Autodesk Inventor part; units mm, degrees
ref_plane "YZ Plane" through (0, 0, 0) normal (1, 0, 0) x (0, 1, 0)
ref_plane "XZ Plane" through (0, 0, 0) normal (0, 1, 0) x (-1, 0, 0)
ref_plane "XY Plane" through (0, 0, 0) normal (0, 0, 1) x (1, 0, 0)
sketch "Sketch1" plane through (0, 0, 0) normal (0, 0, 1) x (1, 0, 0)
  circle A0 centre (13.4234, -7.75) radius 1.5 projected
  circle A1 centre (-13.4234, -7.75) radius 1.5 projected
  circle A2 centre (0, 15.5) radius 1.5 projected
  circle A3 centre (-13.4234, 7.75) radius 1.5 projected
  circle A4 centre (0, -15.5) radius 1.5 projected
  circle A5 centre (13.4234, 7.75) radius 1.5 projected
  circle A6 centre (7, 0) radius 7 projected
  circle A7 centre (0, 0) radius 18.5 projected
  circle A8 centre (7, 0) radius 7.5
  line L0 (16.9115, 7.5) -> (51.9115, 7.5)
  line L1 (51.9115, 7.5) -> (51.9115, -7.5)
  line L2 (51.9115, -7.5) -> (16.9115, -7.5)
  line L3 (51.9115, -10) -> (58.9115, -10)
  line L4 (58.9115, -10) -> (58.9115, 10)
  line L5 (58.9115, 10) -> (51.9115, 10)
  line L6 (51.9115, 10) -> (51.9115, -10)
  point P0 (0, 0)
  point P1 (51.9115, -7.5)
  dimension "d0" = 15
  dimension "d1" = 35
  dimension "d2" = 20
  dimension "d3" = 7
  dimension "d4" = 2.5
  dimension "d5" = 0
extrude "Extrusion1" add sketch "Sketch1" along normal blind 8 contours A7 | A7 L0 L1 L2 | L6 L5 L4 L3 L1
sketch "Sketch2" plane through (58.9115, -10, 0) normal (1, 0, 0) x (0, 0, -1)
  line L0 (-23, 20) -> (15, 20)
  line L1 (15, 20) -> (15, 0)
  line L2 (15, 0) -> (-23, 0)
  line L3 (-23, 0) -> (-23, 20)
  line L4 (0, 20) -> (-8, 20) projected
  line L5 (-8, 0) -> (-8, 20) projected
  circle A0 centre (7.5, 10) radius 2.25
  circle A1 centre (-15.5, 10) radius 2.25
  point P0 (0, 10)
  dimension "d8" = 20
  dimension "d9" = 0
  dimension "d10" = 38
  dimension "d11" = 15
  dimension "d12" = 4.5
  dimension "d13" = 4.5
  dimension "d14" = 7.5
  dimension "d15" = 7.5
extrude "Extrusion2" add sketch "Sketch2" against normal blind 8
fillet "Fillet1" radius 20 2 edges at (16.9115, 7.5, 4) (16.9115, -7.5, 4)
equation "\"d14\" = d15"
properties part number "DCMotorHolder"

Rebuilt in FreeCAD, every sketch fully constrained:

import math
import FreeCAD as App
import Part
import Sketcher
from FreeCAD import Vector


def edges_at(feature, points):
    """Names of the edges that pass closest to the given points."""
    edges = feature.Shape.Edges
    near = lambda p: min(range(len(edges)), key=lambda i: edges[i].distToShape(Part.Vertex(*p))[0])
    return sorted({f"Edge{near(p) + 1}" for p in points})


def add_polygon(sketch, points):
    """Adds a closed chain of lines whose ends are joined by coincident constraints."""
    first, n = sketch.GeometryCount, len(points)
    for a, b in zip(points, points[1:] + points[:1]):
        sketch.addGeometry(Part.LineSegment(App.Vector(*a, 0), App.Vector(*b, 0)), False)
    for i in range(n):
        sketch.addConstraint(Sketcher.Constraint("Coincident", first + i, 2, first + (i + 1) % n, 1))

doc = App.newDocument("Part")
body = doc.addObject("PartDesign::Body", "Body")

# Sketch on XY plane
sketch1 = body.newObject("Sketcher::SketchObject", "Sketch")
sketch1.AttachmentSupport = (doc.getObject("XY_Plane"), [""])
sketch1.MapMode = "FlatFace"
sketch1.addGeometry([
    Part.ArcOfCircle(Part.Circle(Vector(0, 0, 0), Vector(0, 0, 1), 18.5), math.radians(24), math.radians(336)),  # 0
    Part.LineSegment(Vector(16.9, -7.5, 0), Vector(51.9, -7.5, 0)),  # 1
    Part.LineSegment(Vector(51.9, -7.5, 0), Vector(51.9, -10, 0)),  # 2
    Part.LineSegment(Vector(51.9, -10, 0), Vector(58.9, -10, 0)),  # 3
    Part.LineSegment(Vector(58.9, -10, 0), Vector(58.9, 10, 0)),  # 4
    Part.LineSegment(Vector(58.9, 10, 0), Vector(51.9, 10, 0)),  # 5
    Part.LineSegment(Vector(51.9, 10, 0), Vector(51.9, 7.5, 0)),  # 6
    Part.LineSegment(Vector(51.9, 7.5, 0), Vector(16.9, 7.5, 0)),  # 7
    Part.Circle(Vector(0, -15.5, 0), Vector(0, 0, 1), 1.5),  # 8
    Part.Circle(Vector(-13.4, -7.8, 0), Vector(0, 0, 1), 1.5),  # 9
    Part.Circle(Vector(13.4, -7.8, 0), Vector(0, 0, 1), 1.5),  # 10
    Part.Circle(Vector(-13.4, 7.8, 0), Vector(0, 0, 1), 1.5),  # 11
    Part.Circle(Vector(7, 0, 0), Vector(0, 0, 1), 7.5),  # 12
    Part.Circle(Vector(13.4, 7.8, 0), Vector(0, 0, 1), 1.5),  # 13
    Part.Circle(Vector(0, 15.5, 0), Vector(0, 0, 1), 1.5),  # 14
], False)
sketch1.addConstraint([
    Sketcher.Constraint("Coincident", 0, 2, 1, 1),
    Sketcher.Constraint("Coincident", 1, 2, 2, 1),
    Sketcher.Constraint("Coincident", 2, 2, 3, 1),
    Sketcher.Constraint("Coincident", 3, 2, 4, 1),
    Sketcher.Constraint("Coincident", 4, 2, 5, 1),
    Sketcher.Constraint("Coincident", 5, 2, 6, 1),
    Sketcher.Constraint("Coincident", 6, 2, 7, 1),
    Sketcher.Constraint("Coincident", 7, 2, 0, 1),
    Sketcher.Constraint("Horizontal", 1),
    Sketcher.Constraint("Vertical", 2),
    Sketcher.Constraint("Horizontal", 3),
    Sketcher.Constraint("Vertical", 4),
    Sketcher.Constraint("Horizontal", 5),
    Sketcher.Constraint("Vertical", 6),
    Sketcher.Constraint("Horizontal", 7),
    Sketcher.Constraint("Coincident", 0, 3, -1, 1),
    Sketcher.Constraint("Equal", 8, 9),
    Sketcher.Constraint("Equal", 9, 10),
    Sketcher.Constraint("Equal", 10, 11),
    Sketcher.Constraint("Equal", 11, 13),
    Sketcher.Constraint("Equal", 13, 14),
    Sketcher.Constraint("Symmetric", 10, 3, 11, 3, -1, 1),
    Sketcher.Constraint("Symmetric", 9, 3, 13, 3, -1, 1),
    Sketcher.Constraint("Symmetric", 8, 3, 14, 3, -1, 1),
    Sketcher.Constraint("Symmetric", 9, 3, 10, 3, -2),
    Sketcher.Constraint("Symmetric", 2, 2, 5, 2, -1),
    Sketcher.Constraint("PointOnObject", 8, 3, -2),
    Sketcher.Constraint("PointOnObject", 12, 3, -1),
    Sketcher.Constraint("Vertical", 0, 2, 7, 2),
    Sketcher.Constraint("Diameter", 12, 15.0),
    Sketcher.Constraint("DistanceX", 1, 1, 1, 2, 35.0),
    Sketcher.Constraint("DistanceX", 3, 1, 3, 2, 7.0),
    Sketcher.Constraint("DistanceY", 4, 1, 4, 2, 20.0),
    Sketcher.Constraint("Diameter", 8, 3.0),
    Sketcher.Constraint("DistanceY", 2, 2, 2, 1, 2.5),
    Sketcher.Constraint("DistanceX", -1, 1, 12, 3, 7.0),
    Sketcher.Constraint("Radius", 0, 18.5),
    Sketcher.Constraint("DistanceY", 8, 3, 0, 2, 8.0),
    Sketcher.Constraint("DistanceY", 9, 3, 11, 3, 15.5),
    Sketcher.Constraint("DistanceX", 10, 3, 1, 2, 38.488),
])
pad1 = body.newObject("PartDesign::Pad", "Pad")
pad1.Profile = sketch1
pad1.Length = 8

# Sketch on YZ plane
sketch2 = body.newObject("Sketcher::SketchObject", "Sketch001")
sketch2.AttachmentSupport = (doc.getObject("YZ_Plane"), [""])
sketch2.MapMode = "FlatFace"
sketch2.AttachmentOffset = App.Placement(Vector(0, 0, 58.9115), App.Rotation())
add_polygon(sketch2, [(10, 23), (-10, 23), (-10, -15), (10, -15)])  # lines 0-3
sketch2.addGeometry(Part.Circle(Vector(0, 15.5, 0), Vector(0, 0, 1), 2.2), False)  # 4
sketch2.addGeometry(Part.Circle(Vector(0, -7.5, 0), Vector(0, 0, 1), 2.2), False)  # 5
sketch2.addConstraint([
    Sketcher.Constraint("Horizontal", 0),
    Sketcher.Constraint("Vertical", 1),
    Sketcher.Constraint("Horizontal", 2),
    Sketcher.Constraint("Vertical", 3),
    Sketcher.Constraint("Equal", 4, 5),
    Sketcher.Constraint("PointOnObject", 4, 3, -2),
    Sketcher.Constraint("PointOnObject", 5, 3, -2),
    Sketcher.Constraint("Diameter", 4, 4.5),
    Sketcher.Constraint("DistanceX", 0, 2, 0, 1, 20.0),
    Sketcher.Constraint("DistanceY", 1, 2, 1, 1, 38.0),
    Sketcher.Constraint("DistanceY", 1, 2, -1, 1, 15.0),
    Sketcher.Constraint("DistanceY", 5, 3, -1, 1, 7.5),
    Sketcher.Constraint("DistanceY", 4, 3, 0, 2, 7.5),
    Sketcher.Constraint("DistanceX", 0, 2, -1, 1, 10.0),
])
pad2 = body.newObject("PartDesign::Pad", "Pad001")
pad2.Profile = sketch2
pad2.Length = 8
pad2.Reversed = True
doc.recompute()

fillet = body.newObject("PartDesign::Fillet", "Fillet")
fillet.Base = (pad2, edges_at(pad2, [(16.912, 7.5, 4), (16.912, -7.5, 4)]))
fillet.Radius = 20

doc.recompute()
